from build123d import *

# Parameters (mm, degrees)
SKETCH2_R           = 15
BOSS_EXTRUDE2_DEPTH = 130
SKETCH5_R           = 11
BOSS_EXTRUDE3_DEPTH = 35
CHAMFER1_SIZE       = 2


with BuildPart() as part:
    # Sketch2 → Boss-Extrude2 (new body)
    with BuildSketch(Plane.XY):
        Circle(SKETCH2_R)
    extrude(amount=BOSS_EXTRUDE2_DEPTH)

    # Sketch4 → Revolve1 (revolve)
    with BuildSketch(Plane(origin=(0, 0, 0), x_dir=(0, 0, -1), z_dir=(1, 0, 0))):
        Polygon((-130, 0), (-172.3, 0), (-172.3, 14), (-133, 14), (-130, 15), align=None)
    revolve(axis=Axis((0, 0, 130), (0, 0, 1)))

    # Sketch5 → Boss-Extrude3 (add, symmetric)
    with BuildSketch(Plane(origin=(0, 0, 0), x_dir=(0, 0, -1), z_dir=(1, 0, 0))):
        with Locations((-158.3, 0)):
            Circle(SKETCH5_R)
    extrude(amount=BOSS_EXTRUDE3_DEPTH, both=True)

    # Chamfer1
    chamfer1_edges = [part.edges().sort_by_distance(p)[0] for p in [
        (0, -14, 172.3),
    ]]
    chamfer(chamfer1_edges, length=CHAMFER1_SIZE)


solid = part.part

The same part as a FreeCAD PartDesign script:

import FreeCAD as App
import Part
import Sketcher


def edges_at(feature, points):
    """Names of the edges that pass closest to the given points."""
    edges = feature.Shape.Edges
    near = lambda p: min(range(len(edges)), key=lambda i: edges[i].distToShape(Part.Vertex(*p))[0])
    return sorted({f"Edge{near(p) + 1}" for p in points})

doc = App.newDocument("Part")
body = doc.addObject("PartDesign::Body", "Body")

# Sketch on XY plane
sketch1 = body.newObject("Sketcher::SketchObject", "Sketch")
sketch1.AttachmentSupport = (doc.getObject("XY_Plane"), [""])
sketch1.MapMode = "FlatFace"
sketch1.addGeometry(Part.Circle(App.Vector(0, 0, 0), App.Vector(0, 0, 1), 15), False)
sketch1.addConstraint(Sketcher.Constraint("Coincident", 0, 3, -1, 1))
sketch1.addConstraint(Sketcher.Constraint("Diameter", 0, 30.0))
pad1 = body.newObject("PartDesign::Pad", "Pad")
pad1.Profile = sketch1
pad1.Length = 130

# Sketch on YZ plane
sketch2 = body.newObject("Sketcher::SketchObject", "Sketch001")
sketch2.AttachmentSupport = (doc.getObject("YZ_Plane"), [""])
sketch2.MapMode = "FlatFace"
sketch2.addGeometry(Part.LineSegment(App.Vector(0, 172.3, 0), App.Vector(0, 130, 0)), False)
sketch2.addGeometry(Part.LineSegment(App.Vector(0, 130, 0), App.Vector(15, 130, 0)), False)
sketch2.addGeometry(Part.LineSegment(App.Vector(15, 130, 0), App.Vector(14, 133, 0)), False)
sketch2.addGeometry(Part.LineSegment(App.Vector(14, 133, 0), App.Vector(14, 172.3, 0)), False)
sketch2.addGeometry(Part.LineSegment(App.Vector(14, 172.3, 0), App.Vector(0, 172.3, 0)), False)
sketch2.addConstraint(Sketcher.Constraint("Coincident", 0, 2, 1, 1))
sketch2.addConstraint(Sketcher.Constraint("Coincident", 1, 2, 2, 1))
sketch2.addConstraint(Sketcher.Constraint("Coincident", 2, 2, 3, 1))
sketch2.addConstraint(Sketcher.Constraint("Coincident", 3, 2, 4, 1))
sketch2.addConstraint(Sketcher.Constraint("Coincident", 4, 2, 0, 1))
sketch2.addConstraint(Sketcher.Constraint("Vertical", 0))
sketch2.addConstraint(Sketcher.Constraint("Horizontal", 1))
sketch2.addConstraint(Sketcher.Constraint("Vertical", 3))
sketch2.addConstraint(Sketcher.Constraint("Horizontal", 4))
sketch2.addConstraint(Sketcher.Constraint("PointOnObject", 0, 2, -2))
sketch2.addConstraint(Sketcher.Constraint("DistanceX", 1, 1, 1, 2, 15.0))
sketch2.addConstraint(Sketcher.Constraint("DistanceX", 4, 2, 4, 1, 14.0))
sketch2.addConstraint(Sketcher.Constraint("DistanceY", 0, 2, 0, 1, 42.3))
sketch2.addConstraint(Sketcher.Constraint("DistanceY", 3, 1, 3, 2, 39.3))
sketch2.addConstraint(Sketcher.Constraint("DistanceY", -1, 1, 0, 2, 130.0))
revolution = body.newObject("PartDesign::Revolution", "Revolution")
revolution.Profile = sketch2
revolution.ReferenceAxis = (sketch2, ["V_Axis"])
revolution.Angle = 360

# Sketch on YZ plane
sketch3 = body.newObject("Sketcher::SketchObject", "Sketch002")
sketch3.AttachmentSupport = (doc.getObject("YZ_Plane"), [""])
sketch3.MapMode = "FlatFace"
sketch3.addGeometry(Part.Circle(App.Vector(0, 158, 0), App.Vector(0, 0, 1), 11), False)
sketch3.addConstraint(Sketcher.Constraint("PointOnObject", 0, 3, -2))
sketch3.addConstraint(Sketcher.Constraint("Diameter", 0, 22.0))
sketch3.addConstraint(Sketcher.Constraint("DistanceY", -1, 1, 0, 3, 158.3))
pad2 = body.newObject("PartDesign::Pad", "Pad001")
pad2.Profile = sketch3
pad2.Length = 70
pad2.Midplane = True
doc.recompute()

chamfer = body.newObject("PartDesign::Chamfer", "Chamfer")
chamfer.Base = (pad2, edges_at(pad2, [(0, -14, 172.3)]))
chamfer.Size = 2

doc.recompute()
